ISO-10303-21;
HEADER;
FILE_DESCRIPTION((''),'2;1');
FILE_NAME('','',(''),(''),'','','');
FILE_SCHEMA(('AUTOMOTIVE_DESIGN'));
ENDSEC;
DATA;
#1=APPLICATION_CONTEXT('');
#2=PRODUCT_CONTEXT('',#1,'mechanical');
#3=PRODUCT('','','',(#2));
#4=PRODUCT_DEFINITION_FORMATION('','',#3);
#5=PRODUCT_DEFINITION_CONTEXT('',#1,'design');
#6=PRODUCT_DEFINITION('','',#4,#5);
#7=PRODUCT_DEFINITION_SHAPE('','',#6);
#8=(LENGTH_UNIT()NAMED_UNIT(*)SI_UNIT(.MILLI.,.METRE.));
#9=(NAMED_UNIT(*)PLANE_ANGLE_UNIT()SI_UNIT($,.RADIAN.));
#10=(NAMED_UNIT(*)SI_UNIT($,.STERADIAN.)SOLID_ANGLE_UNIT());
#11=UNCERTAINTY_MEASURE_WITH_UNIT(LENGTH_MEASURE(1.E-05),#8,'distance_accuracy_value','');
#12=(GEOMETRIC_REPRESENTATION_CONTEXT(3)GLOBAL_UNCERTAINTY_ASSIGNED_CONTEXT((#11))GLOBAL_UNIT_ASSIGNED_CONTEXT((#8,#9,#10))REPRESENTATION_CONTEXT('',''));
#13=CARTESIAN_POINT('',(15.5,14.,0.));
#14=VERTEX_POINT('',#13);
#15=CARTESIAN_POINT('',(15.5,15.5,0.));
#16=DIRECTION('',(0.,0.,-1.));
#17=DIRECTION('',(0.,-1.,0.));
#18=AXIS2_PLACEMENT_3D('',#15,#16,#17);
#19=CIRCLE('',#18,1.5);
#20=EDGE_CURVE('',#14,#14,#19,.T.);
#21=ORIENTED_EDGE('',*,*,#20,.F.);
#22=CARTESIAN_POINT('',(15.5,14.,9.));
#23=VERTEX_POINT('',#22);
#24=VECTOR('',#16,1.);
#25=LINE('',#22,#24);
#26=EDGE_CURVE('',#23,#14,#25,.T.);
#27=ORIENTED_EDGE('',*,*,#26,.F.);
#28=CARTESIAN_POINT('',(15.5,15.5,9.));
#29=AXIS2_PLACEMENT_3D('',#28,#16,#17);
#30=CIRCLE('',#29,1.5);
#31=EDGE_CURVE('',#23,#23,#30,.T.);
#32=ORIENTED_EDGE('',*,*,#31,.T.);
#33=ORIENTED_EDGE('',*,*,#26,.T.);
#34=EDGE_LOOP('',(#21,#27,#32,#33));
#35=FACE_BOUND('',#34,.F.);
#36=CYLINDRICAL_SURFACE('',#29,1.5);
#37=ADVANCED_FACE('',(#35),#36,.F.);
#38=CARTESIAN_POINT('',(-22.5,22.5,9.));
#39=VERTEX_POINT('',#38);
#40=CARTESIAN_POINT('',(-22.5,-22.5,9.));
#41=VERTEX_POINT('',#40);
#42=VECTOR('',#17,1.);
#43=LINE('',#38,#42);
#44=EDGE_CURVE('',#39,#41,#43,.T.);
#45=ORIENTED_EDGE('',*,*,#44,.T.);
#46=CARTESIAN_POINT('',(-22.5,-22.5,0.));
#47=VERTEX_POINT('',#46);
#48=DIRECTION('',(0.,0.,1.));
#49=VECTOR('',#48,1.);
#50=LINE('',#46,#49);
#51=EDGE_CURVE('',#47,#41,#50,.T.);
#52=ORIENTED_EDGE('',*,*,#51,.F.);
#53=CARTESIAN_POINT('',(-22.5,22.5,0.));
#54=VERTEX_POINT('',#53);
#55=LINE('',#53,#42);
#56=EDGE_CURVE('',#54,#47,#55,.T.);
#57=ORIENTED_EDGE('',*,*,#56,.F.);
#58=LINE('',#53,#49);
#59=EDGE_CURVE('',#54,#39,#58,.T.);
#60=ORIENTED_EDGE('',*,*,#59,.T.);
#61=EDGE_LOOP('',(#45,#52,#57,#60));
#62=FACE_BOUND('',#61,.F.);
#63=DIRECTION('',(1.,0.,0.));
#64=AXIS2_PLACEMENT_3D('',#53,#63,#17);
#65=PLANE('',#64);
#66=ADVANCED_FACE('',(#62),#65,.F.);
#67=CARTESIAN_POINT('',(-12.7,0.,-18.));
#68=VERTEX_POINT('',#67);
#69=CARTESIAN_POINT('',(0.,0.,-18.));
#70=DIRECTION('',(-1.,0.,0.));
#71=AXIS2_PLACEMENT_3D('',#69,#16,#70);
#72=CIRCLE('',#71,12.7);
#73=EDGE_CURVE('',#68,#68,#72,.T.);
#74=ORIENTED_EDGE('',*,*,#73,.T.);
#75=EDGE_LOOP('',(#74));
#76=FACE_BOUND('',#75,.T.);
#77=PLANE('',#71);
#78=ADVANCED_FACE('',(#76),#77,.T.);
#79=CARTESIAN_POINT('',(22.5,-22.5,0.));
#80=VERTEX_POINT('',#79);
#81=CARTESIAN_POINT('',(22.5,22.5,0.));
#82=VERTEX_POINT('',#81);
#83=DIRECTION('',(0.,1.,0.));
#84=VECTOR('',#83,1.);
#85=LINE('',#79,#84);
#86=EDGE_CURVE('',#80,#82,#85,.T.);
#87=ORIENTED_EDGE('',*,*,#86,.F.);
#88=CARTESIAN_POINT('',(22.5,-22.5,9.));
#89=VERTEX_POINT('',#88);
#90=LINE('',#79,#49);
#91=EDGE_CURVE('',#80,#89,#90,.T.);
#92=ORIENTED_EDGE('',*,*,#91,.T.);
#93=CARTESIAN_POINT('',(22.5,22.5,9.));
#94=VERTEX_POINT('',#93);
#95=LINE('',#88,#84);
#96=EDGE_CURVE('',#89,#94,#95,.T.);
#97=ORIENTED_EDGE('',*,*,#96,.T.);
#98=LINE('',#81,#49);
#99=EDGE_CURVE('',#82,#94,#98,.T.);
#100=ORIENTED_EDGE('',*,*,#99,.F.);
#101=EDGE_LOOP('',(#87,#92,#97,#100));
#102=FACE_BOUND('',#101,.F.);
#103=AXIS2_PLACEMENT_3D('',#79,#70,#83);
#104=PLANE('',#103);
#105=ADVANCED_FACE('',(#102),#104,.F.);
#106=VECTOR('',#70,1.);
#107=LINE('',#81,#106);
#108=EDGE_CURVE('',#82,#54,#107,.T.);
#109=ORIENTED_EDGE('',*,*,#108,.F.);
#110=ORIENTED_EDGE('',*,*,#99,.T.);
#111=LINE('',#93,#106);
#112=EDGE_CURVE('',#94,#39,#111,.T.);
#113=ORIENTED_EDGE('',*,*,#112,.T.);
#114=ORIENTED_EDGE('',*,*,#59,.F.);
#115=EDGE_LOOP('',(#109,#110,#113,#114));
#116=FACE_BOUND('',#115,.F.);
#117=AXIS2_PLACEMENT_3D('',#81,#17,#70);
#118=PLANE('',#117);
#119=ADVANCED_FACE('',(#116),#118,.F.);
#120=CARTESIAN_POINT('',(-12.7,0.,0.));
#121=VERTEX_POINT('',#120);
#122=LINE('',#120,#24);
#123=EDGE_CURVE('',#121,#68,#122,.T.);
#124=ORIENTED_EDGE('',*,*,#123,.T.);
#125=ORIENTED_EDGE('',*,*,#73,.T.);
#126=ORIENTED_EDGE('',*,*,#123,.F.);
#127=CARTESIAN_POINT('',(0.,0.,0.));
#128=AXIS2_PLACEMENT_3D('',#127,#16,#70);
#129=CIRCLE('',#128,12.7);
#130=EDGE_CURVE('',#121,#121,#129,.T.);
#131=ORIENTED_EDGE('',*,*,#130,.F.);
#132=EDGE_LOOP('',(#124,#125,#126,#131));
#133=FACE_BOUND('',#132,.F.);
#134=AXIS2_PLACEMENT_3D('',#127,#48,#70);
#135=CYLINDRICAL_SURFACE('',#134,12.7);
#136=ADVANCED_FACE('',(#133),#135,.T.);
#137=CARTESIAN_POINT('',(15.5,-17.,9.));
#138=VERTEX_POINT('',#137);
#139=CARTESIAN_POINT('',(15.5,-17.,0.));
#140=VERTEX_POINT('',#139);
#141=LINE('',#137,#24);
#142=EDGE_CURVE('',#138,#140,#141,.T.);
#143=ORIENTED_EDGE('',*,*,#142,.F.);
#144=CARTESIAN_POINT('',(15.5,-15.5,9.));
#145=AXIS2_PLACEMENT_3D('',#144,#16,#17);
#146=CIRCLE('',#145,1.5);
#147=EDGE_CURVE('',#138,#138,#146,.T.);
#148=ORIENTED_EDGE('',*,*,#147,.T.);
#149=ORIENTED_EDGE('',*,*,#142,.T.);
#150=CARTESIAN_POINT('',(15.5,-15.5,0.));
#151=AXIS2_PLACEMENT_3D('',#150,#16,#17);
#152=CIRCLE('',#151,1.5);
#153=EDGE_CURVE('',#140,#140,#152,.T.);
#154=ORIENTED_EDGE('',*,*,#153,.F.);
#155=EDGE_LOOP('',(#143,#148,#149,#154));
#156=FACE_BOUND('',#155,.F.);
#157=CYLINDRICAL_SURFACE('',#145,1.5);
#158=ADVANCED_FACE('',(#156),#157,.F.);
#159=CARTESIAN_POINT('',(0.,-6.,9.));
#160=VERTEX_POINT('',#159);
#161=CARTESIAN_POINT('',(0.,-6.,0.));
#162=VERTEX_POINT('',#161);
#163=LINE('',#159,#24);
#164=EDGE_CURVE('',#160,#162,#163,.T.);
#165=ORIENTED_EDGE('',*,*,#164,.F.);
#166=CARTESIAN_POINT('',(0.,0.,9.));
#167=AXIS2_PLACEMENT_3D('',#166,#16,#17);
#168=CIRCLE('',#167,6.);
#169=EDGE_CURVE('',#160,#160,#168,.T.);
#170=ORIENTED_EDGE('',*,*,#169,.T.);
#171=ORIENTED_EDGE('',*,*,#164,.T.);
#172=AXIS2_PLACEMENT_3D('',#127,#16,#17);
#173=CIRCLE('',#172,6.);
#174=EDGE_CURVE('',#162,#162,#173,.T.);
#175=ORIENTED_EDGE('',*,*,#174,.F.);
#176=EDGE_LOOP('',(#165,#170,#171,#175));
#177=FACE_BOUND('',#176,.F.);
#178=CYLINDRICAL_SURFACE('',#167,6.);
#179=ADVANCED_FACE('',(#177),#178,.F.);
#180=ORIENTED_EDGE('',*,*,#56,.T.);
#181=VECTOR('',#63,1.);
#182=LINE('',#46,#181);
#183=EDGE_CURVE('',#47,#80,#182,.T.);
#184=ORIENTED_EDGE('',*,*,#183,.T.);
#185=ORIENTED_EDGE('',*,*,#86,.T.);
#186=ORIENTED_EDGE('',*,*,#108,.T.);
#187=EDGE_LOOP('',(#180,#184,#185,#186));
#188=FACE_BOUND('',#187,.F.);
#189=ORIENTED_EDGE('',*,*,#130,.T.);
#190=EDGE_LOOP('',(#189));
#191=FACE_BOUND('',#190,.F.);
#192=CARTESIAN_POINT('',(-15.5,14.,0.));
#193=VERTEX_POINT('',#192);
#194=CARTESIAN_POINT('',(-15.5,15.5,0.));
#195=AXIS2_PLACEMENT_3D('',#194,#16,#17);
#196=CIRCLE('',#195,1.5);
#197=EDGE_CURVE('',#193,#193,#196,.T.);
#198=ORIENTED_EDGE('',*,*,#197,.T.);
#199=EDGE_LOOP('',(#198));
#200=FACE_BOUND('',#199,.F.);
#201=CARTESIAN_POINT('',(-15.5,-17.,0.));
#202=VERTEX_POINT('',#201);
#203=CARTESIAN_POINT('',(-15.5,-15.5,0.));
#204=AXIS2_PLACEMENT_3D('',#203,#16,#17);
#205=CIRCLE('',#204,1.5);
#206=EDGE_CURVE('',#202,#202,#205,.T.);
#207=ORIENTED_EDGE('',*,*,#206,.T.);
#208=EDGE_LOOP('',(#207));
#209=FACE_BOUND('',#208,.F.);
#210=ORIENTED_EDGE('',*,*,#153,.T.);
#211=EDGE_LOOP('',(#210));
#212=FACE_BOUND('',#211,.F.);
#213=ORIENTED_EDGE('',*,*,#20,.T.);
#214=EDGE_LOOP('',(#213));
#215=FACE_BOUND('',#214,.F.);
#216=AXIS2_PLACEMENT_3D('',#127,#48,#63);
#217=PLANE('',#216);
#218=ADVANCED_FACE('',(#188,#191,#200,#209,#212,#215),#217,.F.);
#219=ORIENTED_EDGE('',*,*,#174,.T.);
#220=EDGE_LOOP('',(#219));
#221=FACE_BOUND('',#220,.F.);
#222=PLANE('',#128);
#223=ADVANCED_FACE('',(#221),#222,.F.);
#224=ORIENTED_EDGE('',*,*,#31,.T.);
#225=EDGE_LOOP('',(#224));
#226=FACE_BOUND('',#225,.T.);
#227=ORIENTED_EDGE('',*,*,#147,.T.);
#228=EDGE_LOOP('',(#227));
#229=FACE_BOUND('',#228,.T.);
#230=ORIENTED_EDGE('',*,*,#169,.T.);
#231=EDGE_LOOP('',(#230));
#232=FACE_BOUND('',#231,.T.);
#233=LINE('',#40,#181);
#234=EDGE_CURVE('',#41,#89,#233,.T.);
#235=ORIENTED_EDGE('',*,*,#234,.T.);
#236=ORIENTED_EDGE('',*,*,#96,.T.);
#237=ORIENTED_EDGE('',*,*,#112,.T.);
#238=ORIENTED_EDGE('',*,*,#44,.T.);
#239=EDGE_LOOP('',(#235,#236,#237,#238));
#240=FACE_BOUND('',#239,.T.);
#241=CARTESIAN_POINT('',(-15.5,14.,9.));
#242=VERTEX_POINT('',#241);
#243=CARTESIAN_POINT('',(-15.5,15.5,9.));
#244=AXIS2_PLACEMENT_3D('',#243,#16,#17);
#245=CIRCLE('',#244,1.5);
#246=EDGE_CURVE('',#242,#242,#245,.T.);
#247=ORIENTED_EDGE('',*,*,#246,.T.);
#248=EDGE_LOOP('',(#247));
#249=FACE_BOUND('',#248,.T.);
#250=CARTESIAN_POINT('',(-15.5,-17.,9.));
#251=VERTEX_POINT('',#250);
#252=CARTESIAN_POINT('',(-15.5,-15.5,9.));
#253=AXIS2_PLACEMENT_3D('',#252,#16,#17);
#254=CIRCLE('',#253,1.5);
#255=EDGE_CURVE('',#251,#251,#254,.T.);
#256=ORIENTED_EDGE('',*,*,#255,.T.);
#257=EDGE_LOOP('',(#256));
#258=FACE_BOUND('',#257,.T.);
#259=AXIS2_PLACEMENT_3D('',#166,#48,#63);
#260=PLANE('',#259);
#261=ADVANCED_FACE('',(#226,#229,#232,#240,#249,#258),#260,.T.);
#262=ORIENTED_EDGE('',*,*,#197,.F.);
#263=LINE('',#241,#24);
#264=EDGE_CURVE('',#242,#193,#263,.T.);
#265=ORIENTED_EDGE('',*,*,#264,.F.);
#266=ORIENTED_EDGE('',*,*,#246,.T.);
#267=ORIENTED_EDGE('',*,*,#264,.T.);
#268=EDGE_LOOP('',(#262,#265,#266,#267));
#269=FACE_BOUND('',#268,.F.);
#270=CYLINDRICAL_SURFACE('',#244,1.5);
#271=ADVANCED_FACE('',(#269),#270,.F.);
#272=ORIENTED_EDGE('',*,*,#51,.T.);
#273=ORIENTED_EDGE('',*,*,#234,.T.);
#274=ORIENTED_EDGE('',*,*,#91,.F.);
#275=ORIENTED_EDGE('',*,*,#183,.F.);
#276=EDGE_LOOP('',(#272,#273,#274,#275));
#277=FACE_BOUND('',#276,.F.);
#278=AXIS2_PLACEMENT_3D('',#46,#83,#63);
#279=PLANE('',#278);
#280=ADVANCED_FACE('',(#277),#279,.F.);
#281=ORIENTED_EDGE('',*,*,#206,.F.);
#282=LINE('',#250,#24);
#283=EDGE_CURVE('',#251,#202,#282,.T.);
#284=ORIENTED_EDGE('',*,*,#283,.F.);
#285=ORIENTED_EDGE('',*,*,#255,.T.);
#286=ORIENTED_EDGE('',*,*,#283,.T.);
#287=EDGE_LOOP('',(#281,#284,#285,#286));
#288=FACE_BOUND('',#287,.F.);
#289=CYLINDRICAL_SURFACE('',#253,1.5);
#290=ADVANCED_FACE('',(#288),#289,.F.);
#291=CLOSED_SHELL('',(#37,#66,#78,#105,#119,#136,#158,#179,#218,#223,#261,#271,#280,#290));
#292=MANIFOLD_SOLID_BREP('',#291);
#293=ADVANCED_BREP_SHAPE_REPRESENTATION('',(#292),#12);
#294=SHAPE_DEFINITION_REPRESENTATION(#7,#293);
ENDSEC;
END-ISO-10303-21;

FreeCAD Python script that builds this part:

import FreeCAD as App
import Part
import Sketcher
from FreeCAD import Vector
Q = App.Units.Quantity

doc = App.newDocument("Part")
params = doc.addObject("Spreadsheet::Sheet", "Params")
for row, (alias, value) in enumerate([
    ("sketch1_width", "45 mm"),
    ("pad1_length", "9 mm"),
    ("sketch2_diameter", "12 mm"),
    ("hole_diameter", "12 mm"),
    ("hole_depth", "9 mm"),
    ("sketch3_diameter", "3 mm"),
    ("hole2_diameter", "3 mm"),
    ("hole2_depth", "9 mm"),
    ("sketch4_diameter", "25.4 mm"),
    ("pad2_length", "18 mm"),
], start=1):
    params.set(f"A{row}", alias)
    params.set(f"B{row}", "=" + value)
    params.setAlias(f"B{row}", alias)

body = doc.addObject("PartDesign::Body", "Body")

# Sketch on XY plane
sketch1 = body.newObject("Sketcher::SketchObject", "Sketch")
sketch1.AttachmentSupport = (doc.getObject("XY_Plane"), [""])
sketch1.MapMode = "FlatFace"
sketch1.addGeometry(Part.LineSegment(Vector(-22.5, 22.5, 0), Vector(-22.5, -22.5, 0)), False)
sketch1.addGeometry(Part.LineSegment(Vector(-22.5, -22.5, 0), Vector(22.5, -22.5, 0)), False)
sketch1.addGeometry(Part.LineSegment(Vector(22.5, -22.5, 0), Vector(22.5, 22.5, 0)), False)
sketch1.addGeometry(Part.LineSegment(Vector(22.5, 22.5, 0), Vector(-22.5, 22.5, 0)), False)
sketch1.addConstraint(Sketcher.Constraint("Coincident", 0, 2, 1, 1))
sketch1.addConstraint(Sketcher.Constraint("Coincident", 1, 2, 2, 1))
sketch1.addConstraint(Sketcher.Constraint("Coincident", 2, 2, 3, 1))
sketch1.addConstraint(Sketcher.Constraint("Coincident", 3, 2, 0, 1))
sketch1.addConstraint(Sketcher.Constraint("Vertical", 0))
sketch1.addConstraint(Sketcher.Constraint("Horizontal", 1))
sketch1.addConstraint(Sketcher.Constraint("Vertical", 2))
sketch1.addConstraint(Sketcher.Constraint("Horizontal", 3))
sketch1.addConstraint(Sketcher.Constraint("Symmetric", 0, 2, 2, 2, -1, 1))
sketch1.addConstraint(Sketcher.Constraint("Equal", 3, 0))
sketch1.addConstraint(Sketcher.Constraint("DistanceX", 1, 1, 1, 2, Q("45 mm")))
sketch1.setExpression("Constraints[10]", "Params.sketch1_width")
pad1 = body.newObject("PartDesign::Pad", "Pad")
pad1.Profile = sketch1
pad1.setExpression("Length", "Params.pad1_length")

# Sketch on XY plane
sketch2 = body.newObject("Sketcher::SketchObject", "Sketch001")
sketch2.AttachmentSupport = (doc.getObject("XY_Plane"), [""])
sketch2.MapMode = "FlatFace"
sketch2.AttachmentOffset = App.Placement(Vector(0, 0, 9), App.Rotation())
sketch2.addGeometry(Part.Circle(Vector(0, 0, 0), Vector(0, 0, 1), 6), False)
sketch2.addConstraint(Sketcher.Constraint("Coincident", 0, 3, -1, 1))
sketch2.addConstraint(Sketcher.Constraint("Diameter", 0, Q("12 mm")))
sketch2.setExpression("Constraints[1]", "Params.sketch2_diameter")
doc.recompute()
hole = body.newObject("PartDesign::Hole", "Hole")
hole.Profile = sketch2
hole.ThreadType = "None"
hole.setExpression("Diameter", "Params.hole_diameter")
hole.DepthType = "Dimension"
hole.setExpression("Depth", "Params.hole_depth")
hole.DrillPoint = "Flat"

# Sketch on XY plane
sketch3 = body.newObject("Sketcher::SketchObject", "Sketch002")
sketch3.AttachmentSupport = (doc.getObject("XY_Plane"), [""])
sketch3.MapMode = "FlatFace"
sketch3.AttachmentOffset = App.Placement(Vector(0, 0, 9), App.Rotation())
sketch3.addGeometry(Part.Circle(Vector(-15.5, 15.5, 0), Vector(0, 0, 1), 1.5), False)
sketch3.addGeometry(Part.Circle(Vector(-15.5, -15.5, 0), Vector(0, 0, 1), 1.5), False)
sketch3.addGeometry(Part.Circle(Vector(15.5, -15.5, 0), Vector(0, 0, 1), 1.5), False)
sketch3.addGeometry(Part.Circle(Vector(15.5, 15.5, 0), Vector(0, 0, 1), 1.5), False)
sketch3.addConstraint(Sketcher.Constraint("Equal", 0, 1))
sketch3.addConstraint(Sketcher.Constraint("Equal", 1, 2))
sketch3.addConstraint(Sketcher.Constraint("Equal", 2, 3))
sketch3.addConstraint(Sketcher.Constraint("Symmetric", 0, 3, 2, 3, -1, 1))
sketch3.addConstraint(Sketcher.Constraint("Symmetric", 1, 3, 3, 3, -1, 1))
sketch3.addConstraint(Sketcher.Constraint("Symmetric", 1, 3, 2, 3, -2))
sketch3.addConstraint(Sketcher.Constraint("Diameter", 0, Q("3 mm")))
sketch3.addConstraint(Sketcher.Constraint("DistanceY", 1, 3, 0, 3, Q("31 mm")))
sketch3.addConstraint(Sketcher.Constraint("DistanceX", 1, 3, 2, 3, Q("31 mm")))
sketch3.setExpression("Constraints[6]", "Params.sketch3_diameter")
doc.recompute()
hole2 = body.newObject("PartDesign::Hole", "Hole001")
hole2.Profile = sketch3
hole2.ThreadType = "None"
hole2.setExpression("Diameter", "Params.hole2_diameter")
hole2.DepthType = "Dimension"
hole2.setExpression("Depth", "Params.hole2_depth")
hole2.DrillPoint = "Angled"
hole2.DrillPointAngle = 118

# Sketch on XY plane
sketch4 = body.newObject("Sketcher::SketchObject", "Sketch003")
sketch4.AttachmentSupport = (doc.getObject("XY_Plane"), [""])
sketch4.MapMode = "FlatFace"
sketch4.addGeometry(Part.Circle(Vector(0, 0, 0), Vector(0, 0, 1), 12.7), False)
sketch4.addConstraint(Sketcher.Constraint("Coincident", 0, 3, -1, 1))
sketch4.addConstraint(Sketcher.Constraint("Diameter", 0, Q("25.4 mm")))
sketch4.setExpression("Constraints[1]", "Params.sketch4_diameter")
pad2 = body.newObject("PartDesign::Pad", "Pad001")
pad2.Profile = sketch4
pad2.setExpression("Length", "Params.pad2_length")
pad2.Reversed = True

doc.recompute()
